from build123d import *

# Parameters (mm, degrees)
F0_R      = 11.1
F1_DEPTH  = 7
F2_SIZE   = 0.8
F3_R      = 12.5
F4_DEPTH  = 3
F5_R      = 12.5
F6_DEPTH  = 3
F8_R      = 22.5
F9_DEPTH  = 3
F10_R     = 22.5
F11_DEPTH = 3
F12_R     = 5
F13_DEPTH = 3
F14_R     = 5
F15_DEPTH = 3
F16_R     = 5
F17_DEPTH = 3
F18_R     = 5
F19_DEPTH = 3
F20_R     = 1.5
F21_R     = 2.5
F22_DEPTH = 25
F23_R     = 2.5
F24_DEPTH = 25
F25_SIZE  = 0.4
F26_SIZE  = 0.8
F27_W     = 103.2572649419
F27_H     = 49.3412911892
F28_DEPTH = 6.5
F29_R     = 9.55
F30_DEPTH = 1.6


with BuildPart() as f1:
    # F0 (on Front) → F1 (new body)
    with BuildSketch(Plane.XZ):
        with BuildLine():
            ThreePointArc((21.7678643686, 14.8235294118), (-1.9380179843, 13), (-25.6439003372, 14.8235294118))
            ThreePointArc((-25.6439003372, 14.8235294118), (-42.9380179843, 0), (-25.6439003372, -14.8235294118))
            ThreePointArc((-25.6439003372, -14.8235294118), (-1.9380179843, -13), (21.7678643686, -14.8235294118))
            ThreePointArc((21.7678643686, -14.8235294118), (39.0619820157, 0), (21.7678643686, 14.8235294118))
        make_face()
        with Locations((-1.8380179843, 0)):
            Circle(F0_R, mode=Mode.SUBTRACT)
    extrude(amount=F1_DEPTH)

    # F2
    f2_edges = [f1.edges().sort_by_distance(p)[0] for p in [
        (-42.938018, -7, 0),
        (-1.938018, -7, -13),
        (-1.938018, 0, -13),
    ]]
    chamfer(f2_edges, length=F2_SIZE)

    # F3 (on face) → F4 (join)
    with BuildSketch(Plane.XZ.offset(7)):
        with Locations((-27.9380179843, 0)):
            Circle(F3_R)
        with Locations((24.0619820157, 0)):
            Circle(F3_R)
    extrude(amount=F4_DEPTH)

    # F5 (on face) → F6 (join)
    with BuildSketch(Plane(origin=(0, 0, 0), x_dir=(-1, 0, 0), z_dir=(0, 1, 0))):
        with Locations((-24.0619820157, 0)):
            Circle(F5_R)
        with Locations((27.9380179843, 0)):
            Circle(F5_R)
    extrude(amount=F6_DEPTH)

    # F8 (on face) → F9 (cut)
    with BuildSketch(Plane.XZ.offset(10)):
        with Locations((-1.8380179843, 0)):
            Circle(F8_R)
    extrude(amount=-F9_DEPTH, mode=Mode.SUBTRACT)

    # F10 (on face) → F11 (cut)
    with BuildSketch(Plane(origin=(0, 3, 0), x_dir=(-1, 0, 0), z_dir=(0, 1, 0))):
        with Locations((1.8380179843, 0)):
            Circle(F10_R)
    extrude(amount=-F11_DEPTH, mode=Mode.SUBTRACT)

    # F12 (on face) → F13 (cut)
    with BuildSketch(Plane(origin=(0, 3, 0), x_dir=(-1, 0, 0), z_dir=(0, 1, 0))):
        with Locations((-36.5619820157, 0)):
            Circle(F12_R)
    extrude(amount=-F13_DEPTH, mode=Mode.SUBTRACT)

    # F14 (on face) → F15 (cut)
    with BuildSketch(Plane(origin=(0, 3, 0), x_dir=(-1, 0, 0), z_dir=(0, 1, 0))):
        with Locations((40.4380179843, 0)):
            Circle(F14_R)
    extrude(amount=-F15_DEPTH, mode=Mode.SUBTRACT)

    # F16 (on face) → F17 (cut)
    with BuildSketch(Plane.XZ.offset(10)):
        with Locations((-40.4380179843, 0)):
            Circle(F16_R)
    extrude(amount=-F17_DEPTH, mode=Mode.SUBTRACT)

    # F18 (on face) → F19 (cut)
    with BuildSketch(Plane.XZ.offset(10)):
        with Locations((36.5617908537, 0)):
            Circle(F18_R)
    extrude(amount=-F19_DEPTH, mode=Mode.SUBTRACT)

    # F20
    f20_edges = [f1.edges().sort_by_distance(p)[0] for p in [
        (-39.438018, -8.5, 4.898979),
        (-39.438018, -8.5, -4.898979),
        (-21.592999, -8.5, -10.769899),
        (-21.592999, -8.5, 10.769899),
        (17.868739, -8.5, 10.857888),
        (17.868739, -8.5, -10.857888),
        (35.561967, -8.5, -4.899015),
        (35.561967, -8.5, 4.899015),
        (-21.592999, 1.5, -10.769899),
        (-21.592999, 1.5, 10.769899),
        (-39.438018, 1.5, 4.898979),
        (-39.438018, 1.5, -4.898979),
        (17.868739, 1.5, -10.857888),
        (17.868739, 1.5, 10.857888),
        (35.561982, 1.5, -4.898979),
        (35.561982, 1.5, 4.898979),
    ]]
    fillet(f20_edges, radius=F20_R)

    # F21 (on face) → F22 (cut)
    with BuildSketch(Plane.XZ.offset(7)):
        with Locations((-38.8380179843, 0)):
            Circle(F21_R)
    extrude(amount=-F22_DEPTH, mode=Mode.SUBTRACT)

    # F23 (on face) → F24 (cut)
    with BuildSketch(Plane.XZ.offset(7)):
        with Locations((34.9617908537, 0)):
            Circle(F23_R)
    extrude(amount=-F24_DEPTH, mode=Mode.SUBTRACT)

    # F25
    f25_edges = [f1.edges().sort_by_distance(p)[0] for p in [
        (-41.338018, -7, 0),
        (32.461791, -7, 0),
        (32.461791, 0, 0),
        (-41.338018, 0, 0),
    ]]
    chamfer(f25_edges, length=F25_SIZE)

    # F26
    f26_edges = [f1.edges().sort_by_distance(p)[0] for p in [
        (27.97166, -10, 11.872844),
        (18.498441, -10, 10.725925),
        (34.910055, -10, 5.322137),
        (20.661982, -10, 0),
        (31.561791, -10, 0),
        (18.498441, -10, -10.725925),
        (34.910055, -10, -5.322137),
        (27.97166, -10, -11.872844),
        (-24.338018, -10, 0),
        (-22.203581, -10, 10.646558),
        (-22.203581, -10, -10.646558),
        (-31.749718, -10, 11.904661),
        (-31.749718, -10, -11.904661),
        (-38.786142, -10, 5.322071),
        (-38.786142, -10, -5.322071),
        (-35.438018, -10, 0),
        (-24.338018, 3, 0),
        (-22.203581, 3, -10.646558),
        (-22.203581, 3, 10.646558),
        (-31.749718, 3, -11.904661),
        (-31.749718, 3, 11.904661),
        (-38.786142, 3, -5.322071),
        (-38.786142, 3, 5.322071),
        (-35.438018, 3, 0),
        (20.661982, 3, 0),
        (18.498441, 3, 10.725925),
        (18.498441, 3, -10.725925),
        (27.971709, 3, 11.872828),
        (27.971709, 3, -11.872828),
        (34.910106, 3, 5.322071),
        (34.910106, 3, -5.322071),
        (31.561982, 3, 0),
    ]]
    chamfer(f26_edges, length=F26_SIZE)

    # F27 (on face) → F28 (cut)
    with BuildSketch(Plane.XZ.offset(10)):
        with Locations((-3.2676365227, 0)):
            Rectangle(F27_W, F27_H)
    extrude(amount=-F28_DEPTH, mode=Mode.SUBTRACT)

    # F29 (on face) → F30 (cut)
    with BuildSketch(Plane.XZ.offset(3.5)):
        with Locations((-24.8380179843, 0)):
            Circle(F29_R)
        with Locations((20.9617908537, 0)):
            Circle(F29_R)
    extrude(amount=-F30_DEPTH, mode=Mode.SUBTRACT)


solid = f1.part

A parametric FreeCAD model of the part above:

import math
import FreeCAD as App
import Part
import Sketcher
from FreeCAD import Vector
Q = App.Units.Quantity


def edges_at(feature, points):
    """Names of the edges that pass closest to the given points."""
    edges = feature.Shape.Edges
    near = lambda p: min(range(len(edges)), key=lambda i: edges[i].distToShape(Part.Vertex(*p))[0])
    return sorted({f"Edge{near(p) + 1}" for p in points})


def add_polygon(sketch, points):
    """Adds a closed chain of lines whose ends are joined by coincident constraints."""
    first, n = sketch.GeometryCount, len(points)
    for a, b in zip(points, points[1:] + points[:1]):
        sketch.addGeometry(Part.LineSegment(App.Vector(*a, 0), App.Vector(*b, 0)), False)
    for i in range(n):
        sketch.addConstraint(Sketcher.Constraint("Coincident", first + i, 2, first + (i + 1) % n, 1))

doc = App.newDocument("Part")
body = doc.addObject("PartDesign::Body", "Body")

sketch1 = body.newObject("Sketcher::SketchObject", "Sketch")
sketch1.AttachmentSupport = (doc.getObject("XZ_Plane"), [""])
sketch1.MapMode = "FlatFace"
sketch1.addGeometry(Part.ArcOfCircle(Part.Circle(Vector(-2, 168, 0), Vector(0, 0, 1), 155), math.radians(-98.8), math.radians(-81.2)), False)
sketch1.addGeometry(Part.ArcOfCircle(Part.Circle(Vector(-28, 0, 0), Vector(0, 0, 1), 15), math.radians(81), math.radians(279)), False)
sketch1.addGeometry(Part.ArcOfCircle(Part.Circle(Vector(-2, -168, 0), Vector(0, 0, 1), 155), math.radians(81.2), math.radians(98.8)), False)
sketch1.addGeometry(Part.ArcOfCircle(Part.Circle(Vector(24, 0, 0), Vector(0, 0, 1), 15), math.radians(-99), math.radians(99)), False)
sketch1.addGeometry(Part.Circle(Vector(-2, 0, 0), Vector(0, 0, 1), 11), False)
sketch1.addConstraint(Sketcher.Constraint("Tangent", 0, 1, 1, 1))
sketch1.addConstraint(Sketcher.Constraint("Tangent", 1, 2, 2, 2))
sketch1.addConstraint(Sketcher.Constraint("Tangent", 2, 1, 3, 1))
sketch1.addConstraint(Sketcher.Constraint("Tangent", 3, 2, 0, 2))
sketch1.addConstraint(Sketcher.Constraint("Equal", 0, 2))
sketch1.addConstraint(Sketcher.Constraint("Equal", 1, 3))
sketch1.addConstraint(Sketcher.Constraint("Symmetric", 0, 3, 2, 3, -1))
sketch1.addConstraint(Sketcher.Constraint("PointOnObject", 4, 3, -1))
sketch1.addConstraint(Sketcher.Constraint("Radius", 0, Q("155 mm")))
sketch1.addConstraint(Sketcher.Constraint("Radius", 1, Q("15 mm")))
sketch1.addConstraint(Sketcher.Constraint("Diameter", 4, Q("22.2 mm")))
sketch1.addConstraint(Sketcher.Constraint("DistanceY", -1, 1, 0, 3, Q("168 mm")))
sketch1.addConstraint(Sketcher.Constraint("DistanceX", 4, 3, 3, 3, Q("25.9 mm")))
sketch1.addConstraint(Sketcher.Constraint("DistanceX", 0, 1, -1, 1, Q("25.6439 mm")))
pad1 = body.newObject("PartDesign::Pad", "Pad")
pad1.Profile = sketch1
pad1.Length = 7
doc.recompute()

chamfer = body.newObject("PartDesign::Chamfer", "Chamfer")
chamfer.Base = (pad1, edges_at(pad1, [(-42.938, -7, 0), (-1.938, -7, -13), (-1.938, 0, -13)]))
chamfer.Size = 0.8

sketch2 = body.newObject("Sketcher::SketchObject", "Sketch001")
sketch2.AttachmentSupport = (doc.getObject("XZ_Plane"), [""])
sketch2.MapMode = "FlatFace"
sketch2.AttachmentOffset = App.Placement(Vector(0, 0, 7), App.Rotation())
sketch2.addGeometry(Part.Circle(Vector(-28, 0, 0), Vector(0, 0, 1), 12), False)
sketch2.addGeometry(Part.Circle(Vector(24, 0, 0), Vector(0, 0, 1), 12), False)
sketch2.addConstraint(Sketcher.Constraint("Equal", 0, 1))
sketch2.addConstraint(Sketcher.Constraint("PointOnObject", 0, 3, -1))
sketch2.addConstraint(Sketcher.Constraint("PointOnObject", 1, 3, -1))
sketch2.addConstraint(Sketcher.Constraint("Diameter", 0, Q("25 mm")))
sketch2.addConstraint(Sketcher.Constraint("DistanceX", 0, 3, 1, 3, Q("52 mm")))
sketch2.addConstraint(Sketcher.Constraint("DistanceX", 0, 3, -1, 1, Q("27.938018 mm")))
pad2 = body.newObject("PartDesign::Pad", "Pad001")
pad2.Profile = sketch2
pad2.Length = 3

sketch3 = body.newObject("Sketcher::SketchObject", "Sketch002")
sketch3.AttachmentSupport = (doc.getObject("XZ_Plane"), [""])
sketch3.MapMode = "FlatFace"
sketch3.addGeometry(Part.Circle(Vector(24, 0, 0), Vector(0, 0, 1), 12), False)
sketch3.addGeometry(Part.Circle(Vector(-28, 0, 0), Vector(0, 0, 1), 12), False)
sketch3.addConstraint(Sketcher.Constraint("Equal", 0, 1))
sketch3.addConstraint(Sketcher.Constraint("PointOnObject", 0, 3, -1))
sketch3.addConstraint(Sketcher.Constraint("PointOnObject", 1, 3, -1))
sketch3.addConstraint(Sketcher.Constraint("Diameter", 0, Q("25 mm")))
sketch3.addConstraint(Sketcher.Constraint("DistanceX", 1, 3, 0, 3, Q("52 mm")))
sketch3.addConstraint(Sketcher.Constraint("DistanceX", -1, 1, 0, 3, Q("24.061982 mm")))
pad3 = body.newObject("PartDesign::Pad", "Pad002")
pad3.Profile = sketch3
pad3.Length = 3
pad3.Reversed = True

sketch4 = body.newObject("Sketcher::SketchObject", "Sketch003")
sketch4.AttachmentSupport = (doc.getObject("XZ_Plane"), [""])
sketch4.MapMode = "FlatFace"
sketch4.AttachmentOffset = App.Placement(Vector(0, 0, 10), App.Rotation())
sketch4.addGeometry(Part.Circle(Vector(-2, 0, 0), Vector(0, 0, 1), 22), False)
sketch4.addConstraint(Sketcher.Constraint("PointOnObject", 0, 3, -1))
sketch4.addConstraint(Sketcher.Constraint("Diameter", 0, Q("45 mm")))
sketch4.addConstraint(Sketcher.Constraint("DistanceX", 0, 3, -1, 1, Q("1.838018 mm")))
pocket1 = body.newObject("PartDesign::Pocket", "Pocket")
pocket1.Profile = sketch4
pocket1.Length = 3

sketch5 = body.newObject("Sketcher::SketchObject", "Sketch004")
sketch5.AttachmentSupport = (doc.getObject("XZ_Plane"), [""])
sketch5.MapMode = "FlatFace"
sketch5.AttachmentOffset = App.Placement(Vector(0, 0, -3), App.Rotation())
sketch5.addGeometry(Part.Circle(Vector(-2, 0, 0), Vector(0, 0, 1), 22), False)
sketch5.addConstraint(Sketcher.Constraint("PointOnObject", 0, 3, -1))
sketch5.addConstraint(Sketcher.Constraint("Diameter", 0, Q("45 mm")))
sketch5.addConstraint(Sketcher.Constraint("DistanceX", 0, 3, -1, 1, Q("1.838018 mm")))
pocket2 = body.newObject("PartDesign::Pocket", "Pocket001")
pocket2.Profile = sketch5
pocket2.Length = 3
pocket2.Reversed = True

sketch6 = body.newObject("Sketcher::SketchObject", "Sketch005")
sketch6.AttachmentSupport = (doc.getObject("XZ_Plane"), [""])
sketch6.MapMode = "FlatFace"
sketch6.AttachmentOffset = App.Placement(Vector(0, 0, -3), App.Rotation())
sketch6.addGeometry(Part.Circle(Vector(37, 0, 0), Vector(0, 0, 1), 5), False)
sketch6.addConstraint(Sketcher.Constraint("PointOnObject", 0, 3, -1))
sketch6.addConstraint(Sketcher.Constraint("Diameter", 0, Q("10 mm")))
sketch6.addConstraint(Sketcher.Constraint("DistanceX", -1, 1, 0, 3, Q("36.561982 mm")))
pocket3 = body.newObject("PartDesign::Pocket", "Pocket002")
pocket3.Profile = sketch6
pocket3.Length = 3
pocket3.Reversed = True

sketch7 = body.newObject("Sketcher::SketchObject", "Sketch006")
sketch7.AttachmentSupport = (doc.getObject("XZ_Plane"), [""])
sketch7.MapMode = "FlatFace"
sketch7.AttachmentOffset = App.Placement(Vector(0, 0, -3), App.Rotation())
sketch7.addGeometry(Part.Circle(Vector(-40, 0, 0), Vector(0, 0, 1), 5), False)
sketch7.addConstraint(Sketcher.Constraint("PointOnObject", 0, 3, -1))
sketch7.addConstraint(Sketcher.Constraint("Diameter", 0, Q("10 mm")))
sketch7.addConstraint(Sketcher.Constraint("DistanceX", 0, 3, -1, 1, Q("40.438018 mm")))
pocket4 = body.newObject("PartDesign::Pocket", "Pocket003")
pocket4.Profile = sketch7
pocket4.Length = 3
pocket4.Reversed = True

sketch8 = body.newObject("Sketcher::SketchObject", "Sketch007")
sketch8.AttachmentSupport = (doc.getObject("XZ_Plane"), [""])
sketch8.MapMode = "FlatFace"
sketch8.AttachmentOffset = App.Placement(Vector(0, 0, 10), App.Rotation())
sketch8.addGeometry(Part.Circle(Vector(-40, 0, 0), Vector(0, 0, 1), 5), False)
sketch8.addConstraint(Sketcher.Constraint("PointOnObject", 0, 3, -1))
sketch8.addConstraint(Sketcher.Constraint("Diameter", 0, Q("10 mm")))
sketch8.addConstraint(Sketcher.Constraint("DistanceX", 0, 3, -1, 1, Q("40.438018 mm")))
pocket5 = body.newObject("PartDesign::Pocket", "Pocket004")
pocket5.Profile = sketch8
pocket5.Length = 3

sketch9 = body.newObject("Sketcher::SketchObject", "Sketch008")
sketch9.AttachmentSupport = (doc.getObject("XZ_Plane"), [""])
sketch9.MapMode = "FlatFace"
sketch9.AttachmentOffset = App.Placement(Vector(0, 0, 10), App.Rotation())
sketch9.addGeometry(Part.Circle(Vector(37, 0, 0), Vector(0, 0, 1), 5), False)
sketch9.addConstraint(Sketcher.Constraint("PointOnObject", 0, 3, -1))
sketch9.addConstraint(Sketcher.Constraint("Diameter", 0, Q("10 mm")))
sketch9.addConstraint(Sketcher.Constraint("DistanceX", -1, 1, 0, 3, Q("36.561791 mm")))
pocket6 = body.newObject("PartDesign::Pocket", "Pocket005")
pocket6.Profile = sketch9
pocket6.Length = 3
doc.recompute()

fillet = body.newObject("PartDesign::Fillet", "Fillet")
fillet.Base = (pocket6, edges_at(pocket6, [
    (-39.438, -8.5, 4.899),
    (-39.438, -8.5, -4.899),
    (-21.593, -8.5, -10.77),
    (-21.593, -8.5, 10.77),
    (17.869, -8.5, 10.858),
    (17.869, -8.5, -10.858),
    (35.562, -8.5, -4.899),
    (35.562, -8.5, 4.899),
    (-21.593, 1.5, -10.77),
    (-21.593, 1.5, 10.77),
    (-39.438, 1.5, 4.899),
    (-39.438, 1.5, -4.899),
    (17.869, 1.5, -10.858),
    (17.869, 1.5, 10.858),
    (35.562, 1.5, -4.899),
    (35.562, 1.5, 4.899),
]))
fillet.Radius = 1.5

sketch10 = body.newObject("Sketcher::SketchObject", "Sketch009")
sketch10.AttachmentSupport = (doc.getObject("XZ_Plane"), [""])
sketch10.MapMode = "FlatFace"
sketch10.AttachmentOffset = App.Placement(Vector(0, 0, 7), App.Rotation())
sketch10.addGeometry(Part.Circle(Vector(-38.8, 0, 0), Vector(0, 0, 1), 2.5), False)
sketch10.addConstraint(Sketcher.Constraint("PointOnObject", 0, 3, -1))
sketch10.addConstraint(Sketcher.Constraint("Diameter", 0, Q("5 mm")))
sketch10.addConstraint(Sketcher.Constraint("DistanceX", 0, 3, -1, 1, Q("38.838018 mm")))
pocket7 = body.newObject("PartDesign::Pocket", "Pocket006")
pocket7.Profile = sketch10
pocket7.Length = 25

sketch11 = body.newObject("Sketcher::SketchObject", "Sketch010")
sketch11.AttachmentSupport = (doc.getObject("XZ_Plane"), [""])
sketch11.MapMode = "FlatFace"
sketch11.AttachmentOffset = App.Placement(Vector(0, 0, 7), App.Rotation())
sketch11.addGeometry(Part.Circle(Vector(35, 0, 0), Vector(0, 0, 1), 2.5), False)
sketch11.addConstraint(Sketcher.Constraint("PointOnObject", 0, 3, -1))
sketch11.addConstraint(Sketcher.Constraint("Diameter", 0, Q("5 mm")))
sketch11.addConstraint(Sketcher.Constraint("DistanceX", -1, 1, 0, 3, Q("34.961791 mm")))
pocket8 = body.newObject("PartDesign::Pocket", "Pocket007")
pocket8.Profile = sketch11
pocket8.Length = 25
doc.recompute()

chamfer2 = body.newObject("PartDesign::Chamfer", "Chamfer001")
chamfer2.Base = (pocket8, edges_at(pocket8, [
    (-41.338, -7, 0),
    (32.462, -7, 0),
    (32.462, 0, 0),
    (-41.338, 0, 0),
]))
chamfer2.Size = 0.4
doc.recompute()

chamfer3 = body.newObject("PartDesign::Chamfer", "Chamfer002")
chamfer3.Base = (chamfer2, edges_at(chamfer2, [
    (27.972, -10, 11.873),
    (18.498, -10, 10.726),
    (34.91, -10, 5.322),
    (20.662, -10, 0),
    (31.562, -10, 0),
    (18.498, -10, -10.726),
    (34.91, -10, -5.322),
    (27.972, -10, -11.873),
    (-24.338, -10, 0),
    (-22.204, -10, 10.647),
    (-22.204, -10, -10.647),
    (-31.75, -10, 11.905),
    (-31.75, -10, -11.905),
    (-38.786, -10, 5.322),
    (-38.786, -10, -5.322),
    (-35.438, -10, 0),
    (-24.338, 3, 0),
    (-22.204, 3, -10.647),
    (-22.204, 3, 10.647),
    (-31.75, 3, -11.905),
    (-31.75, 3, 11.905),
    (-38.786, 3, -5.322),
    (-38.786, 3, 5.322),
    (-35.438, 3, 0),
    (20.662, 3, 0),
    (18.498, 3, 10.726),
    (18.498, 3, -10.726),
    (27.972, 3, 11.873),
    (27.972, 3, -11.873),
    (34.91, 3, 5.322),
    (34.91, 3, -5.322),
    (31.562, 3, 0),
]))
chamfer3.Size = 0.8

sketch12 = body.newObject("Sketcher::SketchObject", "Sketch011")
sketch12.AttachmentSupport = (doc.getObject("XZ_Plane"), [""])
sketch12.MapMode = "FlatFace"
sketch12.AttachmentOffset = App.Placement(Vector(0, 0, 10), App.Rotation())
add_polygon(sketch12, [(-55, 25), (-55, -25), (48, -25), (48, 25)])
sketch12.addConstraint(Sketcher.Constraint("Vertical", 0))
sketch12.addConstraint(Sketcher.Constraint("Horizontal", 1))
sketch12.addConstraint(Sketcher.Constraint("Vertical", 2))
sketch12.addConstraint(Sketcher.Constraint("Horizontal", 3))
sketch12.addConstraint(Sketcher.Constraint("DistanceY", 0, 2, 0, 1, Q("49.341291 mm")))
sketch12.addConstraint(Sketcher.Constraint("DistanceX", 1, 1, 1, 2, Q("103.257265 mm")))
sketch12.addConstraint(Sketcher.Constraint("DistanceX", 0, 2, -1, 1, Q("54.896269 mm")))
sketch12.addConstraint(Sketcher.Constraint("DistanceY", 0, 2, -1, 1, Q("24.670646 mm")))
pocket9 = body.newObject("PartDesign::Pocket", "Pocket008")
pocket9.Profile = sketch12
pocket9.Length = 6.5

sketch13 = body.newObject("Sketcher::SketchObject", "Sketch012")
sketch13.AttachmentSupport = (doc.getObject("XZ_Plane"), [""])
sketch13.MapMode = "FlatFace"
sketch13.AttachmentOffset = App.Placement(Vector(0, 0, 3.5), App.Rotation())
sketch13.addGeometry(Part.Circle(Vector(-25, 0, 0), Vector(0, 0, 1), 10), False)
sketch13.addGeometry(Part.Circle(Vector(21, 0, 0), Vector(0, 0, 1), 10), False)
sketch13.addConstraint(Sketcher.Constraint("Equal", 0, 1))
sketch13.addConstraint(Sketcher.Constraint("PointOnObject", 0, 3, -1))
sketch13.addConstraint(Sketcher.Constraint("PointOnObject", 1, 3, -1))
sketch13.addConstraint(Sketcher.Constraint("Diameter", 0, Q("19.1 mm")))
sketch13.addConstraint(Sketcher.Constraint("DistanceX", -1, 1, 1, 3, Q("20.961791 mm")))
sketch13.addConstraint(Sketcher.Constraint("DistanceX", 0, 3, 1, 3, Q("45.799809 mm")))
pocket10 = body.newObject("PartDesign::Pocket", "Pocket009")
pocket10.Profile = sketch13
pocket10.Length = 1.6

doc.recompute()
